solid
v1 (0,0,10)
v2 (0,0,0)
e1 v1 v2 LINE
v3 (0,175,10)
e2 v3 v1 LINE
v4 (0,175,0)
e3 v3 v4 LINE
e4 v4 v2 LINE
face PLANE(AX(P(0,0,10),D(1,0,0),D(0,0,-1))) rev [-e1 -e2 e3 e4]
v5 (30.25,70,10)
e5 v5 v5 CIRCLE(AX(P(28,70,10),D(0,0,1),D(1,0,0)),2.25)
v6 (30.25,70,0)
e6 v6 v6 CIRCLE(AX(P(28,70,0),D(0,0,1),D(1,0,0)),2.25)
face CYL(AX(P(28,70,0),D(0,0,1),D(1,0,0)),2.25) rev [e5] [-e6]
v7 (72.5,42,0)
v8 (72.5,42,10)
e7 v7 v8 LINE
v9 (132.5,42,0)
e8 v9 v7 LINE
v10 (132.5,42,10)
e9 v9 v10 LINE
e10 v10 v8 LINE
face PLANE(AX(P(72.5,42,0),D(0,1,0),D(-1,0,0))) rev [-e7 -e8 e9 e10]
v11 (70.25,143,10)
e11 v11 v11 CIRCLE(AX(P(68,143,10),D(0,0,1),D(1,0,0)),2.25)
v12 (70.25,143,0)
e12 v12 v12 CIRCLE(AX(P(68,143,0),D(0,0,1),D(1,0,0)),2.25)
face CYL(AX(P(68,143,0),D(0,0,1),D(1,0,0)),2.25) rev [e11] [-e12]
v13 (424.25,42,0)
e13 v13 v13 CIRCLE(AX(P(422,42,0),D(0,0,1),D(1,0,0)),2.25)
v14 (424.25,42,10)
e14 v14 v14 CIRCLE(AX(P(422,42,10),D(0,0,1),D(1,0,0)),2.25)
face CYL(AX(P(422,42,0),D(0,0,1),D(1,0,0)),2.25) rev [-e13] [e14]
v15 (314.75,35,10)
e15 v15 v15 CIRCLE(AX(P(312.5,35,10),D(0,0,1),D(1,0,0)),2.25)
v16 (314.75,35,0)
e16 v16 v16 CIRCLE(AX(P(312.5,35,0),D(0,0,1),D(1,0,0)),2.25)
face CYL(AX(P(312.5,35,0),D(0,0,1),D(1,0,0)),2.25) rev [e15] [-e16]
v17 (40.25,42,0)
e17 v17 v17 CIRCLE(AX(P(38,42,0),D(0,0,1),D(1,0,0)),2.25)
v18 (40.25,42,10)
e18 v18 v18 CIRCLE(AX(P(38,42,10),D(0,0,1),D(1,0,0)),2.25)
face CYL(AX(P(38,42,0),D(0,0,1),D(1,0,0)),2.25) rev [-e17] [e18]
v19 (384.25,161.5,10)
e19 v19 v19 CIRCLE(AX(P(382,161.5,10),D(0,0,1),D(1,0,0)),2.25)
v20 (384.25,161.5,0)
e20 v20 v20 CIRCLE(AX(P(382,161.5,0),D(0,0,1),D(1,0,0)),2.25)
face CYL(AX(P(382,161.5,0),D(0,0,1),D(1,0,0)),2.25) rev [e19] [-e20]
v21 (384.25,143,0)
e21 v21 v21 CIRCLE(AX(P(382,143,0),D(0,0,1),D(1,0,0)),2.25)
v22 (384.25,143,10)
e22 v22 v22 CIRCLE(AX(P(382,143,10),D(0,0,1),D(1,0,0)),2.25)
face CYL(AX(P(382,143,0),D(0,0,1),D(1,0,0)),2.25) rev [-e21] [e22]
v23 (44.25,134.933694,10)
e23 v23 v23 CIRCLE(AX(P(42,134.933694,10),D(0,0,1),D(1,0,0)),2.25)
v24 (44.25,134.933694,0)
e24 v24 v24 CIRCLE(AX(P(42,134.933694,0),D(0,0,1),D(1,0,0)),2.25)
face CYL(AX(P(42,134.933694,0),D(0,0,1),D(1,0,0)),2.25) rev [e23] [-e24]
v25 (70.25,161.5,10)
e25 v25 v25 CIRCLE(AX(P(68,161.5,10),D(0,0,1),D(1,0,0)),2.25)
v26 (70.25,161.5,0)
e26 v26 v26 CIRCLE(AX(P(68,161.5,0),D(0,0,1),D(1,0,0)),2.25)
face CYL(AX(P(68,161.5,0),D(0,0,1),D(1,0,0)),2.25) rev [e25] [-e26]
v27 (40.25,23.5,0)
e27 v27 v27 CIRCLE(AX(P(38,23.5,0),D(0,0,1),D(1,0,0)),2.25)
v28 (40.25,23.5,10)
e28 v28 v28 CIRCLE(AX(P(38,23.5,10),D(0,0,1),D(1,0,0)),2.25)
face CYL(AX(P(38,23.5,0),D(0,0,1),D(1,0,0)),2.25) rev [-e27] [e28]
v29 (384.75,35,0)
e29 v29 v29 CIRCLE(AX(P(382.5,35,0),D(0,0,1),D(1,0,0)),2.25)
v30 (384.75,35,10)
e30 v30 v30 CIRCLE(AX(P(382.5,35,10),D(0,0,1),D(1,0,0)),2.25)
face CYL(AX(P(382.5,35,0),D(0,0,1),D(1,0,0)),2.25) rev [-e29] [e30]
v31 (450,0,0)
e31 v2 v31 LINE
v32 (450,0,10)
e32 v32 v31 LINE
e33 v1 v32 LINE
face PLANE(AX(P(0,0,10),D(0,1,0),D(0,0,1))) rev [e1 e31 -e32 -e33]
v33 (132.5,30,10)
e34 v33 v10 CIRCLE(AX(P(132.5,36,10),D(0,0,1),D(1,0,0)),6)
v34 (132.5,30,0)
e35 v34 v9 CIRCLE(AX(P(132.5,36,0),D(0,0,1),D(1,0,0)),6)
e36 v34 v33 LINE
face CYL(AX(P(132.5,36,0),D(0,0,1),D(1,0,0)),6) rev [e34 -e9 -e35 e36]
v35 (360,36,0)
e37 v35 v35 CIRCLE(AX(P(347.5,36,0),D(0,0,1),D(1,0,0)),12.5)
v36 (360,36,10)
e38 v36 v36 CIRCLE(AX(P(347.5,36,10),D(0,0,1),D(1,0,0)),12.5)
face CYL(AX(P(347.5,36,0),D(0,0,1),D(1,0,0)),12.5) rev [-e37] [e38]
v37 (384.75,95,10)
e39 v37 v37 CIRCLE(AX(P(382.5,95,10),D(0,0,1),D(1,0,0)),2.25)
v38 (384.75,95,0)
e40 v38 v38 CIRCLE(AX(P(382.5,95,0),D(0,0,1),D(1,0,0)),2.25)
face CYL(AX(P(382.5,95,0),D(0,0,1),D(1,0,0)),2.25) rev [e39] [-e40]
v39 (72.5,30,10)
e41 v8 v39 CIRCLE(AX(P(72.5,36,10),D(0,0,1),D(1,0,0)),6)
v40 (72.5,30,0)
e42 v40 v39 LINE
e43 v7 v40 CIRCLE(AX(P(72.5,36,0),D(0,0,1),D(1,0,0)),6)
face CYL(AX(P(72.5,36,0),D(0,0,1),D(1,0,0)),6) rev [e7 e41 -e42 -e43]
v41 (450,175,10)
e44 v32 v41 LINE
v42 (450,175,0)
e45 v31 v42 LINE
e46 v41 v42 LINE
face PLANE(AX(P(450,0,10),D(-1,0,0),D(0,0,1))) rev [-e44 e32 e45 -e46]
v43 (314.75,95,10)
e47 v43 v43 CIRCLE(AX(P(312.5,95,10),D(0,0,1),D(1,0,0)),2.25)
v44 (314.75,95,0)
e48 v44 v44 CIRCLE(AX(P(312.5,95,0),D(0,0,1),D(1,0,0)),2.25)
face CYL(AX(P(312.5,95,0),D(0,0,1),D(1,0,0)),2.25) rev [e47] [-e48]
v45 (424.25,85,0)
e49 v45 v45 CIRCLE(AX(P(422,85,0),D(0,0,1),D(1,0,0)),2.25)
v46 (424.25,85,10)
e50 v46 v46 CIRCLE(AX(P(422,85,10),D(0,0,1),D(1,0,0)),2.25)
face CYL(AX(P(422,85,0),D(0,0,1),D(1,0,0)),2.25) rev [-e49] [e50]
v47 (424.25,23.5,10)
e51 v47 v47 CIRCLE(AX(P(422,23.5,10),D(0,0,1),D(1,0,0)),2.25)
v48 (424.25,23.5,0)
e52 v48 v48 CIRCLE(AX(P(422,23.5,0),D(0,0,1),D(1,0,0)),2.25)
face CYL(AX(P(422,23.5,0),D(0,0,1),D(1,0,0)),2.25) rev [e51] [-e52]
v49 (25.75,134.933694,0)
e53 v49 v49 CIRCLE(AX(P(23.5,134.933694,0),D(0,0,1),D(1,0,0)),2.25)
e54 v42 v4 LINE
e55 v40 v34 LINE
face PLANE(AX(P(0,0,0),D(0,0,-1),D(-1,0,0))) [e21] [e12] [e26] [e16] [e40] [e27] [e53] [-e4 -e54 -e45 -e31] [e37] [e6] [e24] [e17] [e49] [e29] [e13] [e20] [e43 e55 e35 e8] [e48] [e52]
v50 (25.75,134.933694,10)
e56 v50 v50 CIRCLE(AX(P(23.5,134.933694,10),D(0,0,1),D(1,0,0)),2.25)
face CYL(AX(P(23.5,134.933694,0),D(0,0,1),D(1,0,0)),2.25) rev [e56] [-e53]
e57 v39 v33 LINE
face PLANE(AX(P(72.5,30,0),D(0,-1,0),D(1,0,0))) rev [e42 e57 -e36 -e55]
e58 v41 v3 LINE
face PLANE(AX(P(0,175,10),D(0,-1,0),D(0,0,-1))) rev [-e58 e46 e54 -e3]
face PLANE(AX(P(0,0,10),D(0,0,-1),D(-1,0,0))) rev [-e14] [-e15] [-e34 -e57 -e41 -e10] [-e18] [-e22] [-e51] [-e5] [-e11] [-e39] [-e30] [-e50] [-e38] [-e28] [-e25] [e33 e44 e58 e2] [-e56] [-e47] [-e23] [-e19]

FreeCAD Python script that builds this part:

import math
import FreeCAD as App
import Part
import Sketcher
from FreeCAD import Vector
Q = App.Units.Quantity

doc = App.newDocument("Part")
params = doc.addObject("Spreadsheet::Sheet", "Params")
for row, (alias, value) in enumerate([
    ("sketch1_width", "450 mm"),
    ("sketch1_height", "175 mm"),
    ("pad1_length", "10 mm"),
    ("sketch2_diameter", "25 mm"),
    ("sketch2_radius", "6 mm"),
    ("sketch2_diameter2", "4.5 mm"),
    ("sketch2_width", "60 mm"),
    ("pocket1_length", "10 mm"),
], start=1):
    params.set(f"A{row}", alias)
    params.set(f"B{row}", "=" + value)
    params.setAlias(f"B{row}", alias)

body = doc.addObject("PartDesign::Body", "Body")

sketch1 = body.newObject("Sketcher::SketchObject", "Sketch")
sketch1.AttachmentSupport = (doc.getObject("XY_Plane"), [""])
sketch1.MapMode = "FlatFace"
sketch1.addGeometry(Part.LineSegment(Vector(0, 175, 0), Vector(0, 0, 0)), False)
sketch1.addGeometry(Part.LineSegment(Vector(0, 0, 0), Vector(450, 0, 0)), False)
sketch1.addGeometry(Part.LineSegment(Vector(450, 0, 0), Vector(450, 175, 0)), False)
sketch1.addGeometry(Part.LineSegment(Vector(450, 175, 0), Vector(0, 175, 0)), False)
sketch1.addConstraint(Sketcher.Constraint("Coincident", 0, 2, 1, 1))
sketch1.addConstraint(Sketcher.Constraint("Coincident", 1, 2, 2, 1))
sketch1.addConstraint(Sketcher.Constraint("Coincident", 2, 2, 3, 1))
sketch1.addConstraint(Sketcher.Constraint("Coincident", 3, 2, 0, 1))
sketch1.addConstraint(Sketcher.Constraint("Vertical", 0))
sketch1.addConstraint(Sketcher.Constraint("Horizontal", 1))
sketch1.addConstraint(Sketcher.Constraint("Vertical", 2))
sketch1.addConstraint(Sketcher.Constraint("Horizontal", 3))
sketch1.addConstraint(Sketcher.Constraint("Coincident", 0, 2, -1, 1))
sketch1.addConstraint(Sketcher.Constraint("DistanceX", 1, 1, 1, 2, Q("450 mm")))
sketch1.addConstraint(Sketcher.Constraint("DistanceY", 0, 2, 0, 1, Q("175 mm")))
sketch1.setExpression("Constraints[9]", "Params.sketch1_width")
sketch1.setExpression("Constraints[10]", "Params.sketch1_height")
pad1 = body.newObject("PartDesign::Pad", "Pad")
pad1.Profile = sketch1
pad1.setExpression("Length", "Params.pad1_length")

sketch2 = body.newObject("Sketcher::SketchObject", "Sketch001")
sketch2.AttachmentSupport = (doc.getObject("XY_Plane"), [""])
sketch2.MapMode = "FlatFace"
sketch2.AttachmentOffset = App.Placement(Vector(0, 0, 10), App.Rotation())
sketch2.addGeometry(Part.Circle(Vector(347.5, 36, 0), Vector(0, 0, 1), 12.5), False)
sketch2.addGeometry(Part.Circle(Vector(382, 161.5, 0), Vector(0, 0, 1), 2.25), False)
sketch2.addGeometry(Part.Circle(Vector(382, 143, 0), Vector(0, 0, 1), 2.25), False)
sketch2.addGeometry(Part.Circle(Vector(68, 161.5, 0), Vector(0, 0, 1), 2.25), False)
sketch2.addGeometry(Part.Circle(Vector(68, 143, 0), Vector(0, 0, 1), 2.25), False)
sketch2.addGeometry(Part.Circle(Vector(38, 42, 0), Vector(0, 0, 1), 2.25), False)
sketch2.addGeometry(Part.Circle(Vector(38, 23.5, 0), Vector(0, 0, 1), 2.25), False)
sketch2.addGeometry(Part.Circle(Vector(422, 23.5, 0), Vector(0, 0, 1), 2.25), False)
sketch2.addGeometry(Part.Circle(Vector(422, 42, 0), Vector(0, 0, 1), 2.25), False)
sketch2.addGeometry(Part.Circle(Vector(23.5, 134.933694, 0), Vector(0, 0, 1), 2.25), False)
sketch2.addGeometry(Part.Circle(Vector(42, 134.933694, 0), Vector(0, 0, 1), 2.25), False)
sketch2.addGeometry(Part.Circle(Vector(28, 70, 0), Vector(0, 0, 1), 2.25), False)
sketch2.addGeometry(Part.Circle(Vector(422, 85, 0), Vector(0, 0, 1), 2.25), False)
sketch2.addGeometry(Part.Circle(Vector(312.5, 95, 0), Vector(0, 0, 1), 2.25), False)
sketch2.addGeometry(Part.Circle(Vector(382.5, 95, 0), Vector(0, 0, 1), 2.25), False)
sketch2.addGeometry(Part.Circle(Vector(382.5, 35, 0), Vector(0, 0, 1), 2.25), False)
sketch2.addGeometry(Part.Circle(Vector(312.5, 35, 0), Vector(0, 0, 1), 2.25), False)
sketch2.addGeometry(Part.LineSegment(Vector(132.5, 42, 0), Vector(72.5, 42, 0)), False)
sketch2.addGeometry(Part.ArcOfCircle(Part.Circle(Vector(72.5, 36, 0), Vector(0, 0, 1), 6), math.radians(90), math.radians(270)), False)
sketch2.addGeometry(Part.LineSegment(Vector(72.5, 30, 0), Vector(132.5, 30, 0)), False)
sketch2.addGeometry(Part.ArcOfCircle(Part.Circle(Vector(132.5, 36, 0), Vector(0, 0, 1), 6), math.radians(-90), math.radians(90)), False)
sketch2.addConstraint(Sketcher.Constraint("Tangent", 17, 2, 18, 1))
sketch2.addConstraint(Sketcher.Constraint("Tangent", 18, 2, 19, 1))
sketch2.addConstraint(Sketcher.Constraint("Tangent", 19, 2, 20, 1))
sketch2.addConstraint(Sketcher.Constraint("Tangent", 20, 2, 17, 1))
sketch2.addConstraint(Sketcher.Constraint("Horizontal", 17))
sketch2.addConstraint(Sketcher.Constraint("Horizontal", 19))
sketch2.addConstraint(Sketcher.Constraint("Equal", 1, 2))
sketch2.addConstraint(Sketcher.Constraint("Equal", 2, 3))
sketch2.addConstraint(Sketcher.Constraint("Equal", 3, 4))
sketch2.addConstraint(Sketcher.Constraint("Equal", 4, 5))
sketch2.addConstraint(Sketcher.Constraint("Equal", 5, 6))
sketch2.addConstraint(Sketcher.Constraint("Equal", 6, 7))
sketch2.addConstraint(Sketcher.Constraint("Equal", 7, 8))
sketch2.addConstraint(Sketcher.Constraint("Equal", 8, 9))
sketch2.addConstraint(Sketcher.Constraint("Equal", 9, 10))
sketch2.addConstraint(Sketcher.Constraint("Equal", 10, 11))
sketch2.addConstraint(Sketcher.Constraint("Equal", 11, 12))
sketch2.addConstraint(Sketcher.Constraint("Equal", 12, 13))
sketch2.addConstraint(Sketcher.Constraint("Equal", 13, 14))
sketch2.addConstraint(Sketcher.Constraint("Equal", 14, 15))
sketch2.addConstraint(Sketcher.Constraint("Equal", 15, 16))
sketch2.addConstraint(Sketcher.Constraint("Horizontal", 1, 3, 3, 3))
sketch2.addConstraint(Sketcher.Constraint("Horizontal", 2, 3, 4, 3))
sketch2.addConstraint(Sketcher.Constraint("Horizontal", 6, 3, 7, 3))
sketch2.addConstraint(Sketcher.Constraint("Horizontal", 5, 3, 8, 3))
sketch2.addConstraint(Sketcher.Constraint("Horizontal", 9, 3, 10, 3))
sketch2.addConstraint(Sketcher.Constraint("Horizontal", 13, 3, 14, 3))
sketch2.addConstraint(Sketcher.Constraint("Horizontal", 15, 3, 16, 3))
sketch2.addConstraint(Sketcher.Constraint("Horizontal", 0, 3, 18, 3))
sketch2.addConstraint(Sketcher.Constraint("Horizontal", 8, 3, 17, 2))
sketch2.addConstraint(Sketcher.Constraint("Vertical", 1, 3, 2, 3))
sketch2.addConstraint(Sketcher.Constraint("Vertical", 3, 3, 4, 3))
sketch2.addConstraint(Sketcher.Constraint("Vertical", 5, 3, 6, 3))
sketch2.addConstraint(Sketcher.Constraint("Vertical", 7, 3, 8, 3))
sketch2.addConstraint(Sketcher.Constraint("Vertical", 8, 3, 12, 3))
sketch2.addConstraint(Sketcher.Constraint("Vertical", 14, 3, 15, 3))
sketch2.addConstraint(Sketcher.Constraint("Vertical", 13, 3, 16, 3))
sketch2.addConstraint(Sketcher.Constraint("Diameter", 0, Q("25 mm")))
sketch2.addConstraint(Sketcher.Constraint("Radius", 18, Q("6 mm")))
sketch2.addConstraint(Sketcher.Constraint("Diameter", 1, Q("4.5 mm")))
sketch2.addConstraint(Sketcher.Constraint("DistanceX", 17, 2, 17, 1, Q("60 mm")))
sketch2.addConstraint(Sketcher.Constraint("DistanceY", -1, 1, 0, 3, Q("36 mm")))
sketch2.addConstraint(Sketcher.Constraint("DistanceX", -1, 1, 1, 3, Q("382 mm")))
sketch2.addConstraint(Sketcher.Constraint("DistanceY", -1, 1, 2, 3, Q("143 mm")))
sketch2.addConstraint(Sketcher.Constraint("DistanceX", -1, 1, 3, 3, Q("68 mm")))
sketch2.addConstraint(Sketcher.Constraint("DistanceX", -1, 1, 5, 3, Q("38 mm")))
sketch2.addConstraint(Sketcher.Constraint("DistanceX", -1, 1, 7, 3, Q("422 mm")))
sketch2.addConstraint(Sketcher.Constraint("DistanceX", -1, 1, 10, 3, Q("42 mm")))
sketch2.addConstraint(Sketcher.Constraint("DistanceX", -1, 1, 11, 3, Q("28 mm")))
sketch2.addConstraint(Sketcher.Constraint("DistanceY", -1, 1, 11, 3, Q("70 mm")))
sketch2.addConstraint(Sketcher.Constraint("DistanceY", -1, 1, 12, 3, Q("85 mm")))
sketch2.addConstraint(Sketcher.Constraint("DistanceY", -1, 1, 13, 3, Q("95 mm")))
sketch2.addConstraint(Sketcher.Constraint("DistanceY", -1, 1, 15, 3, Q("35 mm")))
sketch2.addConstraint(Sketcher.Constraint("DistanceY", 6, 3, 3, 3, Q("138 mm")))
sketch2.addConstraint(Sketcher.Constraint("DistanceX", 9, 3, 0, 3, Q("324 mm")))
sketch2.addConstraint(Sketcher.Constraint("DistanceX", 13, 3, 0, 3, Q("35 mm")))
sketch2.addConstraint(Sketcher.Constraint("DistanceX", 0, 3, 14, 3, Q("35 mm")))
sketch2.addConstraint(Sketcher.Constraint("DistanceX", -1, 1, 0, 3, Q("347.5 mm")))
sketch2.addConstraint(Sketcher.Constraint("DistanceY", -1, 1, 1, 3, Q("161.5 mm")))
sketch2.addConstraint(Sketcher.Constraint("DistanceX", -1, 1, 18, 3, Q("72.5 mm")))
sketch2.addConstraint(Sketcher.Constraint("DistanceY", -1, 1, 9, 3, Q("134.933694 mm")))
sketch2.setExpression("Constraints[37]", "Params.sketch2_diameter")
sketch2.setExpression("Constraints[38]", "Params.sketch2_radius")
sketch2.setExpression("Constraints[39]", "Params.sketch2_diameter2")
sketch2.setExpression("Constraints[40]", "Params.sketch2_width")
pocket1 = body.newObject("PartDesign::Pocket", "Pocket")
pocket1.Profile = sketch2
pocket1.setExpression("Length", "Params.pocket1_length")

doc.recompute()
